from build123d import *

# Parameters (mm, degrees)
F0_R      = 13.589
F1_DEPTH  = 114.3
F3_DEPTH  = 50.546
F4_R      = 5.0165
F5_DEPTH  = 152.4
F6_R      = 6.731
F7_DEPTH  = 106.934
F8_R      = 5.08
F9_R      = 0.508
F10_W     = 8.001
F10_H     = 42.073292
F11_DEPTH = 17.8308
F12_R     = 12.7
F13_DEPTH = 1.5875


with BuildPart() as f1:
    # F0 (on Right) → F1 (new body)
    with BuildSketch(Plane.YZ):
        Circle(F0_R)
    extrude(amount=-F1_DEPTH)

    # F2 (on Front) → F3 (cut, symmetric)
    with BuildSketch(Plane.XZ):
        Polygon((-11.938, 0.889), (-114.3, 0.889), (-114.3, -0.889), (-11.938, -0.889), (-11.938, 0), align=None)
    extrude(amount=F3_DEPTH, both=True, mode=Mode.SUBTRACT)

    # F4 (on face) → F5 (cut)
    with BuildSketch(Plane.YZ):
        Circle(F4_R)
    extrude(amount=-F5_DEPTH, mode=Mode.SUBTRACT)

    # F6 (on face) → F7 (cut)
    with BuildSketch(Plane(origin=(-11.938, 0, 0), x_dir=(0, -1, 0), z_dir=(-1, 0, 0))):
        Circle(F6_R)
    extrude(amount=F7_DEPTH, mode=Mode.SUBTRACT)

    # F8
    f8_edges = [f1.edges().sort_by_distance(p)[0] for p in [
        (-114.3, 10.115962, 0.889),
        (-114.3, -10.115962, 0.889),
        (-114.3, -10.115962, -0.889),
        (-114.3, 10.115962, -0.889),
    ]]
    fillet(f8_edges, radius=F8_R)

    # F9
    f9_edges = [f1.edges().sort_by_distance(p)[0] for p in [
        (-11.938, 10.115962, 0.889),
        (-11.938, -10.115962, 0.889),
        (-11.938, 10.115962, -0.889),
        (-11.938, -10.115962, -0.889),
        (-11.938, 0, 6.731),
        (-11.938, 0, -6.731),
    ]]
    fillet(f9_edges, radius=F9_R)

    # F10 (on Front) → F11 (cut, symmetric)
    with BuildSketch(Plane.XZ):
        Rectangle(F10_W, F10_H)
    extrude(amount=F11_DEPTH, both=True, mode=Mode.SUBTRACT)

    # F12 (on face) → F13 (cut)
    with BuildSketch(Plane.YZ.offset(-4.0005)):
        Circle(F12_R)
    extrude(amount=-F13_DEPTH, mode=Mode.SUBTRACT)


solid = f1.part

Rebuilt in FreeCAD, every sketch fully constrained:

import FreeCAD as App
import Part
import Sketcher
from FreeCAD import Vector
Q = App.Units.Quantity


def edges_at(feature, points):
    """Names of the edges that pass closest to the given points."""
    edges = feature.Shape.Edges
    near = lambda p: min(range(len(edges)), key=lambda i: edges[i].distToShape(Part.Vertex(*p))[0])
    return sorted({f"Edge{near(p) + 1}" for p in points})

doc = App.newDocument("Part")
body = doc.addObject("PartDesign::Body", "Body")

# Sketch on YZ plane
sketch1 = doc.addObject("Sketcher::SketchObject", "Sketch")
body.addObject(sketch1)
sketch1.AttachmentSupport = (doc.YZ_Plane, [""])
sketch1.MapMode = "FlatFace"
sketch1.addGeometry(Part.Circle(Vector(0, 0, 0), Vector(0, 0, 1), 14), False)
sketch1.addConstraint(Sketcher.Constraint("Coincident", 0, 3, -1, 1))
sketch1.addConstraint(Sketcher.Constraint("Diameter", 0, Q("1.07 in")))
pad1 = doc.addObject("PartDesign::Pad", "Pad")
body.addObject(pad1)
pad1.Profile = sketch1
pad1.Length = Q("4.5 in")
pad1.Reversed = True

# Sketch on XZ plane
sketch2 = doc.addObject("Sketcher::SketchObject", "Sketch001")
body.addObject(sketch2)
sketch2.AttachmentSupport = (doc.XZ_Plane, [""])
sketch2.MapMode = "FlatFace"
sketch2.addGeometry(Part.LineSegment(Vector(-11.9, 0.9, 0), Vector(-114.3, 0.9, 0)), False)
sketch2.addGeometry(Part.LineSegment(Vector(-114.3, 0.9, 0), Vector(-114.3, -0.9, 0)), False)
sketch2.addGeometry(Part.LineSegment(Vector(-114.3, -0.9, 0), Vector(-11.9, -0.9, 0)), False)
sketch2.addGeometry(Part.LineSegment(Vector(-11.9, -0.9, 0), Vector(-11.9, 0.9, 0)), False)
sketch2.addConstraint(Sketcher.Constraint("Coincident", 0, 2, 1, 1))
sketch2.addConstraint(Sketcher.Constraint("Coincident", 1, 2, 2, 1))
sketch2.addConstraint(Sketcher.Constraint("Coincident", 2, 2, 3, 1))
sketch2.addConstraint(Sketcher.Constraint("Coincident", 3, 2, 0, 1))
sketch2.addConstraint(Sketcher.Constraint("Horizontal", 0))
sketch2.addConstraint(Sketcher.Constraint("Vertical", 1))
sketch2.addConstraint(Sketcher.Constraint("Horizontal", 2))
sketch2.addConstraint(Sketcher.Constraint("Vertical", 3))
sketch2.addConstraint(Sketcher.Constraint("DistanceX", 0, 2, 0, 1, Q("4.03 in")))
sketch2.addConstraint(Sketcher.Constraint("DistanceY", 1, 2, 1, 1, Q("0.07 in")))
sketch2.addConstraint(Sketcher.Constraint("DistanceX", 0, 2, -1, 1, Q("4.5 in")))
sketch2.addConstraint(Sketcher.Constraint("DistanceY", -1, 1, 0, 2, Q("0.035 in")))
pocket1 = doc.addObject("PartDesign::Pocket", "Pocket")
body.addObject(pocket1)
pocket1.Profile = sketch2
pocket1.Length = Q("3.98 in")
pocket1.Midplane = True

# Sketch on YZ plane
sketch3 = doc.addObject("Sketcher::SketchObject", "Sketch002")
body.addObject(sketch3)
sketch3.AttachmentSupport = (doc.YZ_Plane, [""])
sketch3.MapMode = "FlatFace"
sketch3.addGeometry(Part.Circle(Vector(0, 0, 0), Vector(0, 0, 1), 5), False)
sketch3.addConstraint(Sketcher.Constraint("Coincident", 0, 3, -1, 1))
sketch3.addConstraint(Sketcher.Constraint("Diameter", 0, Q("0.395 in")))
pocket2 = doc.addObject("PartDesign::Pocket", "Pocket001")
body.addObject(pocket2)
pocket2.Profile = sketch3
pocket2.Length = Q("6 in")

# Sketch on YZ plane
sketch4 = doc.addObject("Sketcher::SketchObject", "Sketch003")
body.addObject(sketch4)
sketch4.AttachmentSupport = (doc.YZ_Plane, [""])
sketch4.MapMode = "FlatFace"
sketch4.AttachmentOffset = App.Placement(Vector(0, 0, -0.47 * 25.4), App.Rotation())
sketch4.addGeometry(Part.Circle(Vector(0, 0, 0), Vector(0, 0, 1), 7), False)
sketch4.addConstraint(Sketcher.Constraint("Coincident", 0, 3, -1, 1))
sketch4.addConstraint(Sketcher.Constraint("Diameter", 0, Q("0.53 in")))
pocket3 = doc.addObject("PartDesign::Pocket", "Pocket002")
body.addObject(pocket3)
pocket3.Profile = sketch4
pocket3.Length = Q("4.21 in")
doc.recompute()

fillet = doc.addObject("PartDesign::Fillet", "Fillet")
body.addObject(fillet)
fillet.Base = (pocket3, edges_at(pocket3, [
    (-114.3, 10.116, 0.889),
    (-114.3, -10.116, 0.889),
    (-114.3, -10.116, -0.889),
    (-114.3, 10.116, -0.889),
]))
fillet.Radius = Q("0.2 in")
doc.recompute()

fillet2 = doc.addObject("PartDesign::Fillet", "Fillet001")
body.addObject(fillet2)
fillet2.Base = (fillet, edges_at(fillet, [
    (-11.938, 10.116, 0.889),
    (-11.938, -10.116, 0.889),
    (-11.938, 10.116, -0.889),
    (-11.938, -10.116, -0.889),
    (-11.938, 0, 6.731),
    (-11.938, 0, -6.731),
]))
fillet2.Radius = Q("0.02 in")

# Sketch on XZ plane
sketch5 = doc.addObject("Sketcher::SketchObject", "Sketch004")
body.addObject(sketch5)
sketch5.AttachmentSupport = (doc.XZ_Plane, [""])
sketch5.MapMode = "FlatFace"
sketch5.addGeometry(Part.LineSegment(Vector(-4, 21, 0), Vector(-4, -21, 0)), False)
sketch5.addGeometry(Part.LineSegment(Vector(-4, -21, 0), Vector(4, -21, 0)), False)
sketch5.addGeometry(Part.LineSegment(Vector(4, -21, 0), Vector(4, 21, 0)), False)
sketch5.addGeometry(Part.LineSegment(Vector(4, 21, 0), Vector(-4, 21, 0)), False)
sketch5.addConstraint(Sketcher.Constraint("Coincident", 0, 2, 1, 1))
sketch5.addConstraint(Sketcher.Constraint("Coincident", 1, 2, 2, 1))
sketch5.addConstraint(Sketcher.Constraint("Coincident", 2, 2, 3, 1))
sketch5.addConstraint(Sketcher.Constraint("Coincident", 3, 2, 0, 1))
sketch5.addConstraint(Sketcher.Constraint("Vertical", 0))
sketch5.addConstraint(Sketcher.Constraint("Horizontal", 1))
sketch5.addConstraint(Sketcher.Constraint("Vertical", 2))
sketch5.addConstraint(Sketcher.Constraint("Horizontal", 3))
sketch5.addConstraint(Sketcher.Constraint("Symmetric", 0, 2, 2, 2, -1, 1))
sketch5.addConstraint(Sketcher.Constraint("DistanceX", 1, 1, 1, 2, Q("0.315 in")))
sketch5.addConstraint(Sketcher.Constraint("DistanceY", 0, 2, 0, 1, 42.073292))
pocket4 = doc.addObject("PartDesign::Pocket", "Pocket003")
body.addObject(pocket4)
pocket4.Profile = sketch5
pocket4.Length = Q("1.404 in")
pocket4.Midplane = True

# Sketch on YZ plane
sketch6 = doc.addObject("Sketcher::SketchObject", "Sketch005")
body.addObject(sketch6)
sketch6.AttachmentSupport = (doc.YZ_Plane, [""])
sketch6.MapMode = "FlatFace"
sketch6.AttachmentOffset = App.Placement(Vector(0, 0, -0.1575 * 25.4), App.Rotation())
sketch6.addGeometry(Part.Circle(Vector(0, 0, 0), Vector(0, 0, 1), 13), False)
sketch6.addConstraint(Sketcher.Constraint("Coincident", 0, 3, -1, 1))
sketch6.addConstraint(Sketcher.Constraint("Diameter", 0, Q("1 in")))
pocket5 = doc.addObject("PartDesign::Pocket", "Pocket004")
body.addObject(pocket5)
pocket5.Profile = sketch6
pocket5.Length = Q("0.0625 in")

doc.recompute()
